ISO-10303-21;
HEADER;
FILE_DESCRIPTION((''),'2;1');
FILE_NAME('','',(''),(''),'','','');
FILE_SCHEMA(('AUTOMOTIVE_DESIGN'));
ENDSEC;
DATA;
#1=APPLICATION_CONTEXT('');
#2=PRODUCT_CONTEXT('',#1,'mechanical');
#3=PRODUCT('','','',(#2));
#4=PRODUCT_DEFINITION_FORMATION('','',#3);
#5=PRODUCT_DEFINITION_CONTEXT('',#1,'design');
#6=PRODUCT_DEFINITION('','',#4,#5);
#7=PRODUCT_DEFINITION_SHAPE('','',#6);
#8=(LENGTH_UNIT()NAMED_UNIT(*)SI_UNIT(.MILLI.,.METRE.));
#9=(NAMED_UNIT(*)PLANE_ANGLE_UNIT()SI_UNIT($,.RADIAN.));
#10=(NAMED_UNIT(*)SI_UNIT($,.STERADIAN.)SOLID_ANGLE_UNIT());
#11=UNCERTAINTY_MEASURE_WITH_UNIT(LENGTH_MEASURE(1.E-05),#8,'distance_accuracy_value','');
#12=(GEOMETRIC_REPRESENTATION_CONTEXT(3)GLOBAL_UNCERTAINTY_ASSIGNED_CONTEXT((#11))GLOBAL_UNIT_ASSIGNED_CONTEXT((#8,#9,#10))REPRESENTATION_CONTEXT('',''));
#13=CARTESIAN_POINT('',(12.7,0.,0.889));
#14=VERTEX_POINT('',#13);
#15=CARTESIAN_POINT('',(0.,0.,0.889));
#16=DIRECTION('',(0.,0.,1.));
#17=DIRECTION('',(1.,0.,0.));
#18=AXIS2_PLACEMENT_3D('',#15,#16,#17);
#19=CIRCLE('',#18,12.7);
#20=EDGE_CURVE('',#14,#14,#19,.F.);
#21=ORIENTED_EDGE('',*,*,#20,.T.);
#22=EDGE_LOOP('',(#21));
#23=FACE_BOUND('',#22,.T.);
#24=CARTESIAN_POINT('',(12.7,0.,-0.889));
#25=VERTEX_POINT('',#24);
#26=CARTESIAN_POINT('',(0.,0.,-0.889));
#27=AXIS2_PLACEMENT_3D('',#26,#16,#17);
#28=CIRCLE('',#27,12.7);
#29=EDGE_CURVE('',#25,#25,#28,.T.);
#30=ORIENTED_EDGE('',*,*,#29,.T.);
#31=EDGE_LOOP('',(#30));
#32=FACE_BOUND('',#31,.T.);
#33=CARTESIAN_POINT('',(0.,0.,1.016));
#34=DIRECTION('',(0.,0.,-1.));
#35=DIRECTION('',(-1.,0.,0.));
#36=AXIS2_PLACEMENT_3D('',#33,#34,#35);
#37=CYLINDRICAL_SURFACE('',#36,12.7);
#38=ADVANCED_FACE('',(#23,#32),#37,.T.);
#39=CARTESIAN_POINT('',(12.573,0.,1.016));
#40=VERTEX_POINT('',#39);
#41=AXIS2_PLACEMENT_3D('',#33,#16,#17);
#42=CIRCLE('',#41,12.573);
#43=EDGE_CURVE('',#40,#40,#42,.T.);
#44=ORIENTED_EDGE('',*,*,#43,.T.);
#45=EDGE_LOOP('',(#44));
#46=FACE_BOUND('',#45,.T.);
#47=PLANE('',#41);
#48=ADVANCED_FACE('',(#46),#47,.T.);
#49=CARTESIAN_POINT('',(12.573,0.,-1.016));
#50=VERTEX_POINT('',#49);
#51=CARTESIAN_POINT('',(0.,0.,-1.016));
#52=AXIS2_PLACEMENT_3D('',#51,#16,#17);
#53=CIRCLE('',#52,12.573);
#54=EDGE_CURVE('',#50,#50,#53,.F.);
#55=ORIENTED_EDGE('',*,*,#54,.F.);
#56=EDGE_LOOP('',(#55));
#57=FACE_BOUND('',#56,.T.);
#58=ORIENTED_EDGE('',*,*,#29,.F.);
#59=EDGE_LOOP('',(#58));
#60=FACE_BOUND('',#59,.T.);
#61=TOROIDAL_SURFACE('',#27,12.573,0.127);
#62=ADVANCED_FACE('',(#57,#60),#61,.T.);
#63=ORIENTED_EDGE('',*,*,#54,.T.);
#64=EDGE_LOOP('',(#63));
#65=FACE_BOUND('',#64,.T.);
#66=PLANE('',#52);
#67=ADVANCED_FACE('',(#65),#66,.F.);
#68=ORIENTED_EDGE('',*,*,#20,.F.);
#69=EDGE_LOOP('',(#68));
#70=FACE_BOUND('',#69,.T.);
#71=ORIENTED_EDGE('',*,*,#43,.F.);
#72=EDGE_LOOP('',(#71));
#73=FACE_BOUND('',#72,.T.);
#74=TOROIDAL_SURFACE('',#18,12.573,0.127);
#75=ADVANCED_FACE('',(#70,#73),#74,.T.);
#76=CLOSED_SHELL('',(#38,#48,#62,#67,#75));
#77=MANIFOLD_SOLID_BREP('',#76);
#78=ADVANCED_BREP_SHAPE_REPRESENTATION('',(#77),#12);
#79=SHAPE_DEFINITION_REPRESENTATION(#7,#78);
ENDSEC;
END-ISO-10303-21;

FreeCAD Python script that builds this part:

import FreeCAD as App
import Part
import Sketcher
Q = App.Units.Quantity


def edges_at(feature, points):
    """Names of the edges that pass closest to the given points."""
    edges = feature.Shape.Edges
    near = lambda p: min(range(len(edges)), key=lambda i: edges[i].distToShape(Part.Vertex(*p))[0])
    return sorted({f"Edge{near(p) + 1}" for p in points})

doc = App.newDocument("Part")
body = doc.addObject("PartDesign::Body", "Body")

sketch1 = body.newObject("Sketcher::SketchObject", "Sketch")
sketch1.AttachmentSupport = (doc.getObject("XY_Plane"), [""])
sketch1.MapMode = "FlatFace"
sketch1.addGeometry(Part.Circle(App.Vector(0, 0, 0), App.Vector(0, 0, 1), 13), False)
sketch1.addConstraint(Sketcher.Constraint("Coincident", 0, 3, -1, 1))
sketch1.addConstraint(Sketcher.Constraint("Diameter", 0, Q("1 in")))
pad1 = body.newObject("PartDesign::Pad", "Pad")
pad1.Profile = sketch1
pad1.Type = "TwoLengths"
pad1.Length = Q("0.04 in")
pad1.Length2 = Q("0.04 in")
doc.recompute()

fillet = body.newObject("PartDesign::Fillet", "Fillet")
fillet.Base = (pad1, edges_at(pad1, [(-12.7, 0, -1.016), (-12.7, 0, 1.016)]))
fillet.Radius = Q("0.005 in")

doc.recompute()
